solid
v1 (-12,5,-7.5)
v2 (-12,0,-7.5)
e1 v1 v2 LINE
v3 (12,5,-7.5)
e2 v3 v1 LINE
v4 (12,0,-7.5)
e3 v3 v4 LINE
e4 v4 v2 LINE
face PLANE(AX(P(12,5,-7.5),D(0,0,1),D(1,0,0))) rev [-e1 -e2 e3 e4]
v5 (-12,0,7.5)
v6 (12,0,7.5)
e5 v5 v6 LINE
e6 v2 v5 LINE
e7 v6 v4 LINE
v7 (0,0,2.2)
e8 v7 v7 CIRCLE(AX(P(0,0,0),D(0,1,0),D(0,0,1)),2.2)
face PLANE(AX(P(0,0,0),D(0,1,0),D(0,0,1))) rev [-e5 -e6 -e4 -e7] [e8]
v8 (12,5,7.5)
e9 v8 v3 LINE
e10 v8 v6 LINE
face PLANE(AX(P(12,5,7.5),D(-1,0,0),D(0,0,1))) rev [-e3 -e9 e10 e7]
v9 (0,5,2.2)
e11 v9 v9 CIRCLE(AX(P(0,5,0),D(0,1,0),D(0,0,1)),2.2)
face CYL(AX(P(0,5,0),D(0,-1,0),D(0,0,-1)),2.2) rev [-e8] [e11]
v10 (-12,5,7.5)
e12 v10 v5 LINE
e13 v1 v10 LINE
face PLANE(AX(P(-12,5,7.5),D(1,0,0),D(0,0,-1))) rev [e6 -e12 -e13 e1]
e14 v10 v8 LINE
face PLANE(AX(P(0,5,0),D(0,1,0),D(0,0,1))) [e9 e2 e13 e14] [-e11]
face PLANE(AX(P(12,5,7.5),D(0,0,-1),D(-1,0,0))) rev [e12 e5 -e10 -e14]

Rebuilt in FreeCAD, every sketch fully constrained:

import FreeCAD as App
import Part
import Sketcher

V = App.Vector


def add_polygon(sketch, points):
    """Adds a closed chain of lines whose ends are joined by coincident constraints."""
    first, n = sketch.GeometryCount, len(points)
    for a, b in zip(points, points[1:] + points[:1]):
        sketch.addGeometry(Part.LineSegment(App.Vector(*a, 0), App.Vector(*b, 0)), False)
    for i in range(n):
        sketch.addConstraint(Sketcher.Constraint("Coincident", first + i, 2, first + (i + 1) % n, 1))

doc = App.newDocument("Part")
body = doc.addObject("PartDesign::Body", "Body")

# Sketch on XZ plane
sketch1 = body.newObject("Sketcher::SketchObject", "Sketch")
sketch1.AttachmentSupport = (doc.getObject("XZ_Plane"), [""])
sketch1.MapMode = "FlatFace"
add_polygon(sketch1, [(-12, -7.5), (-12, 7.5), (12, 7.5), (12, -7.5)])  # lines 0-3
sketch1.addGeometry(Part.Circle(V(0, 0, 0), V(0, 0, 1), 2.2), False)  # 4
sketch1.addConstraint([
    Sketcher.Constraint("Vertical", 0),
    Sketcher.Constraint("Horizontal", 1),
    Sketcher.Constraint("Vertical", 2),
    Sketcher.Constraint("Horizontal", 3),
    Sketcher.Constraint("Coincident", 4, 3, -1, 1),
    Sketcher.Constraint("Symmetric", 0, 2, 2, 2, -1, 1),
    Sketcher.Constraint("Diameter", 4, 4.4),
    Sketcher.Constraint("DistanceX", 1, 1, 1, 2, 24.0),
    Sketcher.Constraint("DistanceY", 0, 1, 0, 2, 15.0),
])
pad1 = body.newObject("PartDesign::Pad", "Pad")
pad1.Profile = sketch1
pad1.Length = 5
pad1.Reversed = True

doc.recompute()
